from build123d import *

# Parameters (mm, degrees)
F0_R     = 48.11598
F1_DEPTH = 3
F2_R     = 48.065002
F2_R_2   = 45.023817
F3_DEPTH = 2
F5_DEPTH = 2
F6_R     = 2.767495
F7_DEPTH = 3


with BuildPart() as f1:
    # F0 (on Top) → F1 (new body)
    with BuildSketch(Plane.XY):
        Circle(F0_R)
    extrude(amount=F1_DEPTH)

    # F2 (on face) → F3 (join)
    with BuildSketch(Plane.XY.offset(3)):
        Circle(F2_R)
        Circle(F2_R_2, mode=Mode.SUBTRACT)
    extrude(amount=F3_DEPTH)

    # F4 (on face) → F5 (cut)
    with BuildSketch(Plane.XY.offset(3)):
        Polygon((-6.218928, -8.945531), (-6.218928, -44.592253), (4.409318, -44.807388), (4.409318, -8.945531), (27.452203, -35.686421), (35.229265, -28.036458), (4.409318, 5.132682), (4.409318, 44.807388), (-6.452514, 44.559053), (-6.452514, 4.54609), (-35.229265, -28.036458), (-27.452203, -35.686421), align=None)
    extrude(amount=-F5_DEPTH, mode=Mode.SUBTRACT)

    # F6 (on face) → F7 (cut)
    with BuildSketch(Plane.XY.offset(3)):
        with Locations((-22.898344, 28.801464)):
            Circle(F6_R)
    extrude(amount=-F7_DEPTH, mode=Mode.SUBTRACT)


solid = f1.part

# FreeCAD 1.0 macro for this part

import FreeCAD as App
import Part
import Sketcher

V = App.Vector
Q = App.Units.Quantity


def add_polygon(sketch, points):
    """Adds a closed chain of lines whose ends are joined by coincident constraints."""
    first, n = sketch.GeometryCount, len(points)
    for a, b in zip(points, points[1:] + points[:1]):
        sketch.addGeometry(Part.LineSegment(App.Vector(*a, 0), App.Vector(*b, 0)), False)
    for i in range(n):
        sketch.addConstraint(Sketcher.Constraint("Coincident", first + i, 2, first + (i + 1) % n, 1))

doc = App.newDocument("Part")
body = doc.addObject("PartDesign::Body", "Body")

# Sketch on XY plane
sketch1 = body.newObject("Sketcher::SketchObject", "Sketch")
sketch1.AttachmentSupport = (doc.getObject("XY_Plane"), [""])
sketch1.MapMode = "FlatFace"
sketch1.addGeometry(Part.Circle(V(0, 0, 0), V(0, 0, 1), 48), False)
sketch1.addConstraint([
    Sketcher.Constraint("Coincident", 0, 3, -1, 1),
    Sketcher.Constraint("Diameter", 0, Q("96.23196 mm")),
])
pad1 = body.newObject("PartDesign::Pad", "Pad")
pad1.Profile = sketch1
pad1.Length = 3

# Sketch on XY plane
sketch2 = body.newObject("Sketcher::SketchObject", "Sketch001")
sketch2.AttachmentSupport = (doc.getObject("XY_Plane"), [""])
sketch2.MapMode = "FlatFace"
sketch2.AttachmentOffset = App.Placement(V(0, 0, 3), App.Rotation())
sketch2.addGeometry([
    Part.Circle(V(0, 0, 0), V(0, 0, 1), 48),
    Part.Circle(V(0, 0, 0), V(0, 0, 1), 45),
], False)
sketch2.addConstraint([
    Sketcher.Constraint("Coincident", 0, 3, -1, 1),
    Sketcher.Constraint("Coincident", 1, 3, -1, 1),
    Sketcher.Constraint("Diameter", 0, Q("96.130004 mm")),
    Sketcher.Constraint("Diameter", 1, Q("90.047634 mm")),
])
pad2 = body.newObject("PartDesign::Pad", "Pad001")
pad2.Profile = sketch2
pad2.Length = 2

# Sketch on XY plane
sketch3 = body.newObject("Sketcher::SketchObject", "Sketch002")
sketch3.AttachmentSupport = (doc.getObject("XY_Plane"), [""])
sketch3.MapMode = "FlatFace"
sketch3.AttachmentOffset = App.Placement(V(0, 0, 3), App.Rotation())
add_polygon(sketch3, [(-6, -9), (-6, -45), (4, -45), (4, -9), (27, -36), (35, -28), (4, 5), (4, 45), (-6, 45), (-6, 5), (-35, -28), (-27, -36)])  # lines 0-11
sketch3.addConstraint([
    Sketcher.Constraint("Vertical", 0),
    Sketcher.Constraint("Vertical", 2),
    Sketcher.Constraint("Vertical", 6),
    Sketcher.Constraint("Vertical", 8),
    Sketcher.Constraint("Symmetric", 4, 2, 9, 2, -2),
    Sketcher.Constraint("Symmetric", 3, 2, 10, 2, -2),
    Sketcher.Constraint("Symmetric", 1, 2, 6, 2, -1),
    Sketcher.Constraint("Horizontal", 2, 2, 11, 2),
    Sketcher.Constraint("Distance", 5, Q("45.277599 mm")),
    Sketcher.Constraint("DistanceY", 0, 2, 0, 1, Q("35.646722 mm")),
    Sketcher.Constraint("DistanceY", 8, 2, 6, 2, Q("40.261298 mm")),
    Sketcher.Constraint("Distance", 3, Q("35.29943 mm")),
    Sketcher.Constraint("Distance", 7, Q("10.86467 mm")),
    Sketcher.Constraint("DistanceY", 2, 1, 2, 2, Q("35.861857 mm")),
    Sketcher.Constraint("DistanceY", 6, 1, 6, 2, Q("39.674706 mm")),
    Sketcher.Constraint("DistanceY", 8, 2, 8, 1, Q("40.012963 mm")),
    Sketcher.Constraint("DistanceY", 1, 2, -1, 1, Q("44.807388 mm")),
    Sketcher.Constraint("DistanceY", 3, 2, -1, 1, Q("35.686421 mm")),
    Sketcher.Constraint("DistanceX", 0, 2, 3, 2, Q("33.671131 mm")),
    Sketcher.Constraint("DistanceX", 3, 2, 4, 2, Q("7.777062 mm")),
    Sketcher.Constraint("DistanceX", 9, 2, 8, 2, Q("28.776751 mm")),
])
pocket1 = body.newObject("PartDesign::Pocket", "Pocket")
pocket1.Profile = sketch3
pocket1.Length = 2

# Sketch on XY plane
sketch4 = body.newObject("Sketcher::SketchObject", "Sketch003")
sketch4.AttachmentSupport = (doc.getObject("XY_Plane"), [""])
sketch4.MapMode = "FlatFace"
sketch4.AttachmentOffset = App.Placement(V(0, 0, 3), App.Rotation())
sketch4.addGeometry(Part.Circle(V(-22.9, 28.8, 0), V(0, 0, 1), 2.8), False)
sketch4.addConstraint([
    Sketcher.Constraint("Diameter", 0, Q("5.53499 mm")),
    Sketcher.Constraint("DistanceX", 0, 3, -1, 1, Q("22.898344 mm")),
    Sketcher.Constraint("DistanceY", -1, 1, 0, 3, Q("28.801464 mm")),
])
pocket2 = body.newObject("PartDesign::Pocket", "Pocket001")
pocket2.Profile = sketch4
pocket2.Length = 3

doc.recompute()
